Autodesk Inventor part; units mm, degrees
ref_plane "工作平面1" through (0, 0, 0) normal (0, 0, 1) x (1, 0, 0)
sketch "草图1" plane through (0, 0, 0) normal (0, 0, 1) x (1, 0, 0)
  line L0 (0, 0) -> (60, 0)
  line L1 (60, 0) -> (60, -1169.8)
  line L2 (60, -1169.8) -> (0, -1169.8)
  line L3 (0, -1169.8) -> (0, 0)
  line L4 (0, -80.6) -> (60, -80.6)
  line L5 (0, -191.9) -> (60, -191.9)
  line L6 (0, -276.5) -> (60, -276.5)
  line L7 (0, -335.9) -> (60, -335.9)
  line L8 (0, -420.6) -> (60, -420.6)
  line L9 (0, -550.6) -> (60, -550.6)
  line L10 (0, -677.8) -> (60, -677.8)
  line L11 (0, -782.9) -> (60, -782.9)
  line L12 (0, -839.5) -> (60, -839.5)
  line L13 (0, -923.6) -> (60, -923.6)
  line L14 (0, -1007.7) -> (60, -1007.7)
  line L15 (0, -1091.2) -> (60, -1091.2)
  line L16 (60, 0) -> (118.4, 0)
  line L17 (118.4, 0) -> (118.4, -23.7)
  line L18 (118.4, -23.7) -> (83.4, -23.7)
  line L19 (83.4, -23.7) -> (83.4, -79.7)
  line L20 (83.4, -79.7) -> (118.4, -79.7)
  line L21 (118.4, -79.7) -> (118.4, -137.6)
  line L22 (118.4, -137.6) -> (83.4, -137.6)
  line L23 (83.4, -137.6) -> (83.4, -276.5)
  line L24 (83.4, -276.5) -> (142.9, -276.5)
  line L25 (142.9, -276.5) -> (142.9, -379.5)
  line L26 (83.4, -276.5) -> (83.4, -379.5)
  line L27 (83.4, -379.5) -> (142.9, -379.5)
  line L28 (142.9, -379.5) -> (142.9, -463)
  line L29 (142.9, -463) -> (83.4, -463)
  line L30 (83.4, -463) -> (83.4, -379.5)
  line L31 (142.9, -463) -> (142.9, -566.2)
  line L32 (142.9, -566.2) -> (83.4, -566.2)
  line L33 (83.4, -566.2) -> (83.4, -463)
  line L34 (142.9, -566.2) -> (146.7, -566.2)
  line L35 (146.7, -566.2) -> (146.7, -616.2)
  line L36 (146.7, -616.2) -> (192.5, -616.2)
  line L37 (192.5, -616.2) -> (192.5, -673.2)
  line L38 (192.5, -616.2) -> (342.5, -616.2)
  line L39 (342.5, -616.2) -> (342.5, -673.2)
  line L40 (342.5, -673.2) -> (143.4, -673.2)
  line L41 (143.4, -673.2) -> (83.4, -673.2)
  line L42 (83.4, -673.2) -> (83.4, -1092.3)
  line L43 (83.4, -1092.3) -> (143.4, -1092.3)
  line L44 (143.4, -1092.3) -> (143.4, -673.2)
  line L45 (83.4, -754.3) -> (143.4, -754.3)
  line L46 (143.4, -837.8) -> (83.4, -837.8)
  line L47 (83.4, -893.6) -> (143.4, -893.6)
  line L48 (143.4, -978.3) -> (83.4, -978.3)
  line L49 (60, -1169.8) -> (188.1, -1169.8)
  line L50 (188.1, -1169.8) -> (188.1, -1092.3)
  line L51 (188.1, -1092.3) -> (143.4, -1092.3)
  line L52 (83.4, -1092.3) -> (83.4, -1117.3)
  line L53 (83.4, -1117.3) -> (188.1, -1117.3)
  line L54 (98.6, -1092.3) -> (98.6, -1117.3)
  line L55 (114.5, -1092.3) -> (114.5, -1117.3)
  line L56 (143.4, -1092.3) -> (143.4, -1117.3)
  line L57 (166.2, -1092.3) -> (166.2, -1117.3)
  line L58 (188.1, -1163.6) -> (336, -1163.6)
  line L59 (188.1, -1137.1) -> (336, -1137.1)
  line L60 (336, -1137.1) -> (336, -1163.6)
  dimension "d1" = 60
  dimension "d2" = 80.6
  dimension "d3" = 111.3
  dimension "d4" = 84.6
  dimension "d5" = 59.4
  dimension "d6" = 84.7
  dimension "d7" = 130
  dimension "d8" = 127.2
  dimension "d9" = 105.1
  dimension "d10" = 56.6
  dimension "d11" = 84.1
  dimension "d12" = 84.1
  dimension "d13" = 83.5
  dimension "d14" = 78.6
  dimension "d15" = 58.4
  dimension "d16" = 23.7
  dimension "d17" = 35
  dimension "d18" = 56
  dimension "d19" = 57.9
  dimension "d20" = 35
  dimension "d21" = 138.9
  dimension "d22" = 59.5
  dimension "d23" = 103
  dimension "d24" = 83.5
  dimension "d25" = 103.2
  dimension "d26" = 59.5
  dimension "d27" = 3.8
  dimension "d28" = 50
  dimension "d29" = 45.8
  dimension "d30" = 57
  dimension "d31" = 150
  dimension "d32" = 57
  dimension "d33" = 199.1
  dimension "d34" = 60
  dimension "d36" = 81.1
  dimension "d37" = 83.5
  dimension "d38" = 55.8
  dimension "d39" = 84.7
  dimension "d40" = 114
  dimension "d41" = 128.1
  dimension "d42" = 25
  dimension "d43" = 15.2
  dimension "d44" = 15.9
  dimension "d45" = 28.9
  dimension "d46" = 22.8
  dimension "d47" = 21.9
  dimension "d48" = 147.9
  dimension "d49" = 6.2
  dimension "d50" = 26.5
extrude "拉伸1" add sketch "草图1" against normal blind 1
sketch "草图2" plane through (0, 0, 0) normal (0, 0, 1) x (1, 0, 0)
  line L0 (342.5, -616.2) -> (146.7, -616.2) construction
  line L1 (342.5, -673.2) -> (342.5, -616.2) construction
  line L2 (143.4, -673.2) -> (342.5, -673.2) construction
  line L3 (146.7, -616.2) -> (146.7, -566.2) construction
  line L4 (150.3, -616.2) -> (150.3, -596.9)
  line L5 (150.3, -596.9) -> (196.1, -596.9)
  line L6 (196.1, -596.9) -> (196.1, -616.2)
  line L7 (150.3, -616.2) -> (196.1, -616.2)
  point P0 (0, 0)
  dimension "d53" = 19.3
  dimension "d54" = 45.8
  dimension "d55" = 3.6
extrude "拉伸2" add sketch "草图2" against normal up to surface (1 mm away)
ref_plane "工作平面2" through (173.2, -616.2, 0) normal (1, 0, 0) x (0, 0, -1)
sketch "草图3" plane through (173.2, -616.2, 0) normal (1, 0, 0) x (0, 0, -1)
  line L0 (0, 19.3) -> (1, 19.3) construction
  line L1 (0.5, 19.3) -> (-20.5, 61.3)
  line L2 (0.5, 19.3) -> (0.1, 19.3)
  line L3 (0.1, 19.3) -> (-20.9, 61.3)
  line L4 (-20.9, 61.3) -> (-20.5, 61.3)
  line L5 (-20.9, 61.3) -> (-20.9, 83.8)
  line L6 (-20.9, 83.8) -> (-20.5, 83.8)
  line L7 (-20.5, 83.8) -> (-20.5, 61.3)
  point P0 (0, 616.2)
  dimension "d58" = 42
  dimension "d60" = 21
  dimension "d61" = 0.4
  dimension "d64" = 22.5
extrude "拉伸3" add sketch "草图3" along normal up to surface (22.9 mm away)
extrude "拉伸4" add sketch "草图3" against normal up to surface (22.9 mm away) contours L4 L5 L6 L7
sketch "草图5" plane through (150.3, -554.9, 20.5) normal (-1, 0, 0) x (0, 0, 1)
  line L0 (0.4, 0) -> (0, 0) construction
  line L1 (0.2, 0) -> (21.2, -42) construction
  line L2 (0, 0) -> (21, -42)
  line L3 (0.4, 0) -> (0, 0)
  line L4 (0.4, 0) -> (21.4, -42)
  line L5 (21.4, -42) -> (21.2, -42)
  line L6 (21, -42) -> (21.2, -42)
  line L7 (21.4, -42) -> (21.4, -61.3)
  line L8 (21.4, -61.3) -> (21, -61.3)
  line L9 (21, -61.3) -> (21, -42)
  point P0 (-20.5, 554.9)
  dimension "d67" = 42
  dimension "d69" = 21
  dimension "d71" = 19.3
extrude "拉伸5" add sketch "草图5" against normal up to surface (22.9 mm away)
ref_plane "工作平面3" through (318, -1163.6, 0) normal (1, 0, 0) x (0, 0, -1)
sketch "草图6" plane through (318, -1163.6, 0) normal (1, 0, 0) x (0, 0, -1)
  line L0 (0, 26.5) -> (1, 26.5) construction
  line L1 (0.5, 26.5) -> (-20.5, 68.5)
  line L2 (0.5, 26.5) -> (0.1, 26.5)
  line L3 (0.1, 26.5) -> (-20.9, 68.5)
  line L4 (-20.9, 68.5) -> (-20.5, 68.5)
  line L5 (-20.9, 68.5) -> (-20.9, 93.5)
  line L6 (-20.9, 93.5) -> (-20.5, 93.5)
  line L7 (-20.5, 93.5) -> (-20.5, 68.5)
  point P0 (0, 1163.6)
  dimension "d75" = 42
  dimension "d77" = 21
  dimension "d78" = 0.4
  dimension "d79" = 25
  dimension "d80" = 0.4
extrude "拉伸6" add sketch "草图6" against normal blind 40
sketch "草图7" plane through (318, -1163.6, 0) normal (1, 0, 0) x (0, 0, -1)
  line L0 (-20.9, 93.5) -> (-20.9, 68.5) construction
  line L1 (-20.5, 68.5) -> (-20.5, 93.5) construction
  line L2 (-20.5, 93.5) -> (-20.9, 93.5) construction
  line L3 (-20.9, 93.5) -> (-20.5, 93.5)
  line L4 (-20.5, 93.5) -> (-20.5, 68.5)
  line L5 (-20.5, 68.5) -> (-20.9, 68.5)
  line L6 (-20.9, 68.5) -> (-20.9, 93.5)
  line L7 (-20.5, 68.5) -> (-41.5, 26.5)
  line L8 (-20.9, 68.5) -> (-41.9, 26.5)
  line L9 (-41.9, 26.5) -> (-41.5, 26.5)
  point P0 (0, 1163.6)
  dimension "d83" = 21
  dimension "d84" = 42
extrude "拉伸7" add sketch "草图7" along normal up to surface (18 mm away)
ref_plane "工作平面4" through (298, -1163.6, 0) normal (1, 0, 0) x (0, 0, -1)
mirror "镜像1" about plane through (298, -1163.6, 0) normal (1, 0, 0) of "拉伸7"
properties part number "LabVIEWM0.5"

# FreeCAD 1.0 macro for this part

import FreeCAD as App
import Part
import Sketcher
from FreeCAD import Vector
Q = App.Units.Quantity

doc = App.newDocument("Part")
body = doc.addObject("PartDesign::Body", "Body")

# Sketch on XY plane
sketch1 = body.newObject("Sketcher::SketchObject", "Sketch")
sketch1.AttachmentSupport = (doc.getObject("XY_Plane"), [""])
sketch1.MapMode = "FlatFace"
sketch1.addGeometry([
    Part.LineSegment(Vector(0, 0, 0), Vector(0, -1169.8, 0)),  # 0
    Part.LineSegment(Vector(0, -1169.8, 0), Vector(188.1, -1169.8, 0)),  # 1
    Part.LineSegment(Vector(188.1, -1169.8, 0), Vector(188.1, -1163.6, 0)),  # 2
    Part.LineSegment(Vector(188.1, -1163.6, 0), Vector(336, -1163.6, 0)),  # 3
    Part.LineSegment(Vector(336, -1163.6, 0), Vector(336, -1137.1, 0)),  # 4
    Part.LineSegment(Vector(336, -1137.1, 0), Vector(188.1, -1137.1, 0)),  # 5
    Part.LineSegment(Vector(188.1, -1137.1, 0), Vector(188.1, -1092.3, 0)),  # 6
    Part.LineSegment(Vector(188.1, -1092.3, 0), Vector(143.4, -1092.3, 0)),  # 7
    Part.LineSegment(Vector(143.4, -1092.3, 0), Vector(143.4, -673.2, 0)),  # 8
    Part.LineSegment(Vector(143.4, -673.2, 0), Vector(342.5, -673.2, 0)),  # 9
    Part.LineSegment(Vector(342.5, -673.2, 0), Vector(342.5, -616.2, 0)),  # 10
    Part.LineSegment(Vector(342.5, -616.2, 0), Vector(146.7, -616.2, 0)),  # 11
    Part.LineSegment(Vector(146.7, -616.2, 0), Vector(146.7, -566.2, 0)),  # 12
    Part.LineSegment(Vector(146.7, -566.2, 0), Vector(142.9, -566.2, 0)),  # 13
    Part.LineSegment(Vector(142.9, -566.2, 0), Vector(142.9, -276.5, 0)),  # 14
    Part.LineSegment(Vector(142.9, -276.5, 0), Vector(83.4, -276.5, 0)),  # 15
    Part.LineSegment(Vector(83.4, -276.5, 0), Vector(83.4, -137.6, 0)),  # 16
    Part.LineSegment(Vector(83.4, -137.6, 0), Vector(118.4, -137.6, 0)),  # 17
    Part.LineSegment(Vector(118.4, -137.6, 0), Vector(118.4, -79.7, 0)),  # 18
    Part.LineSegment(Vector(118.4, -79.7, 0), Vector(83.4, -79.7, 0)),  # 19
    Part.LineSegment(Vector(83.4, -79.7, 0), Vector(83.4, -23.7, 0)),  # 20
    Part.LineSegment(Vector(83.4, -23.7, 0), Vector(118.4, -23.7, 0)),  # 21
    Part.LineSegment(Vector(118.4, -23.7, 0), Vector(118.4, 0, 0)),  # 22
    Part.LineSegment(Vector(118.4, 0, 0), Vector(0, 0, 0)),  # 23
], False)
sketch1.addConstraint([
    Sketcher.Constraint("Coincident", 0, 2, 1, 1),
    Sketcher.Constraint("Coincident", 1, 2, 2, 1),
    Sketcher.Constraint("Coincident", 2, 2, 3, 1),
    Sketcher.Constraint("Coincident", 3, 2, 4, 1),
    Sketcher.Constraint("Coincident", 4, 2, 5, 1),
    Sketcher.Constraint("Coincident", 5, 2, 6, 1),
    Sketcher.Constraint("Coincident", 6, 2, 7, 1),
    Sketcher.Constraint("Coincident", 7, 2, 8, 1),
    Sketcher.Constraint("Coincident", 8, 2, 9, 1),
    Sketcher.Constraint("Coincident", 9, 2, 10, 1),
    Sketcher.Constraint("Coincident", 10, 2, 11, 1),
    Sketcher.Constraint("Coincident", 11, 2, 12, 1),
    Sketcher.Constraint("Coincident", 12, 2, 13, 1),
    Sketcher.Constraint("Coincident", 13, 2, 14, 1),
    Sketcher.Constraint("Coincident", 14, 2, 15, 1),
    Sketcher.Constraint("Coincident", 15, 2, 16, 1),
    Sketcher.Constraint("Coincident", 16, 2, 17, 1),
    Sketcher.Constraint("Coincident", 17, 2, 18, 1),
    Sketcher.Constraint("Coincident", 18, 2, 19, 1),
    Sketcher.Constraint("Coincident", 19, 2, 20, 1),
    Sketcher.Constraint("Coincident", 20, 2, 21, 1),
    Sketcher.Constraint("Coincident", 21, 2, 22, 1),
    Sketcher.Constraint("Coincident", 22, 2, 23, 1),
    Sketcher.Constraint("Coincident", 23, 2, 0, 1),
    Sketcher.Constraint("Vertical", 0),
    Sketcher.Constraint("Horizontal", 1),
    Sketcher.Constraint("Vertical", 2),
    Sketcher.Constraint("Horizontal", 3),
    Sketcher.Constraint("Vertical", 4),
    Sketcher.Constraint("Horizontal", 5),
    Sketcher.Constraint("Vertical", 6),
    Sketcher.Constraint("Horizontal", 7),
    Sketcher.Constraint("Vertical", 8),
    Sketcher.Constraint("Horizontal", 9),
    Sketcher.Constraint("Vertical", 10),
    Sketcher.Constraint("Horizontal", 11),
    Sketcher.Constraint("Vertical", 12),
    Sketcher.Constraint("Horizontal", 13),
    Sketcher.Constraint("Vertical", 14),
    Sketcher.Constraint("Horizontal", 15),
    Sketcher.Constraint("Vertical", 16),
    Sketcher.Constraint("Horizontal", 17),
    Sketcher.Constraint("Vertical", 18),
    Sketcher.Constraint("Horizontal", 19),
    Sketcher.Constraint("Vertical", 20),
    Sketcher.Constraint("Horizontal", 21),
    Sketcher.Constraint("Vertical", 22),
    Sketcher.Constraint("Horizontal", 23),
    Sketcher.Constraint("Coincident", 23, 2, -1, 1),
    Sketcher.Constraint("Vertical", 2, 2, 5, 2),
    Sketcher.Constraint("Vertical", 16, 2, 19, 2),
    Sketcher.Constraint("Vertical", 18, 2, 21, 2),
    Sketcher.Constraint("DistanceX", 17, 1, 17, 2, Q("35 mm")),
    Sketcher.Constraint("DistanceY", 10, 1, 10, 2, Q("57 mm")),
    Sketcher.Constraint("DistanceY", 12, 1, 12, 2, Q("50 mm")),
    Sketcher.Constraint("DistanceY", 20, 1, 20, 2, Q("56 mm")),
    Sketcher.Constraint("DistanceX", 3, 1, 3, 2, Q("147.9 mm")),
    Sketcher.Constraint("DistanceX", 9, 1, 9, 2, Q("199.1 mm")),
    Sketcher.Constraint("DistanceX", 13, 2, 13, 1, Q("3.8 mm")),
    Sketcher.Constraint("DistanceX", 15, 2, 15, 1, Q("59.5 mm")),
    Sketcher.Constraint("DistanceY", 2, 1, 2, 2, Q("6.2 mm")),
    Sketcher.Constraint("DistanceY", 4, 1, 4, 2, Q("26.5 mm")),
    Sketcher.Constraint("DistanceY", 16, 1, 16, 2, Q("138.9 mm")),
    Sketcher.Constraint("DistanceY", 18, 1, 18, 2, Q("57.9 mm")),
    Sketcher.Constraint("DistanceY", 22, 1, 22, 2, Q("23.7 mm")),
    Sketcher.Constraint("DistanceX", 15, 2, 8, 2, Q("60 mm")),
    Sketcher.Constraint("DistanceX", 1, 1, 1, 2, Q("188.1 mm")),
    Sketcher.Constraint("DistanceX", 7, 2, 7, 1, Q("44.7 mm")),
    Sketcher.Constraint("DistanceY", 0, 2, 0, 1, Q("1169.8 mm")),
    Sketcher.Constraint("DistanceY", 6, 1, 6, 2, Q("44.8 mm")),
    Sketcher.Constraint("DistanceY", 8, 1, 8, 2, Q("419.1 mm")),
])
pad1 = body.newObject("PartDesign::Pad", "Pad")
pad1.Profile = sketch1
pad1.Length = 1
pad1.Reversed = True

# Sketch on XY plane
sketch2 = body.newObject("Sketcher::SketchObject", "Sketch001")
sketch2.AttachmentSupport = (doc.getObject("XY_Plane"), [""])
sketch2.MapMode = "FlatFace"
sketch2.addGeometry([
    Part.LineSegment(Vector(150.3, -596.9, 0), Vector(150.3, -616.2, 0)),
    Part.LineSegment(Vector(150.3, -616.2, 0), Vector(196.1, -616.2, 0)),
    Part.LineSegment(Vector(196.1, -616.2, 0), Vector(196.1, -596.9, 0)),
    Part.LineSegment(Vector(196.1, -596.9, 0), Vector(150.3, -596.9, 0)),
], False)
sketch2.addConstraint([
    Sketcher.Constraint("Coincident", 0, 2, 1, 1),
    Sketcher.Constraint("Coincident", 1, 2, 2, 1),
    Sketcher.Constraint("Coincident", 2, 2, 3, 1),
    Sketcher.Constraint("Coincident", 3, 2, 0, 1),
    Sketcher.Constraint("Vertical", 0),
    Sketcher.Constraint("Horizontal", 1),
    Sketcher.Constraint("Vertical", 2),
    Sketcher.Constraint("Horizontal", 3),
    Sketcher.Constraint("DistanceX", 1, 1, 1, 2, Q("45.8 mm")),
    Sketcher.Constraint("DistanceY", 0, 2, 0, 1, Q("19.3 mm")),
    Sketcher.Constraint("DistanceX", -1, 1, 0, 2, Q("150.3 mm")),
    Sketcher.Constraint("DistanceY", 0, 2, -1, 1, Q("616.2 mm")),
])
pad2 = body.newObject("PartDesign::Pad", "Pad001")
pad2.Profile = sketch2
pad2.Length = 1
pad2.Reversed = True

# Sketch on YZ plane
sketch3 = body.newObject("Sketcher::SketchObject", "Sketch002")
sketch3.AttachmentSupport = (doc.getObject("YZ_Plane"), [""])
sketch3.MapMode = "FlatFace"
sketch3.AttachmentOffset = App.Placement(Vector(0, 0, 173.2), App.Rotation())
sketch3.addGeometry([
    Part.LineSegment(Vector(-596.9, -0.1, 0), Vector(-596.9, -0.5, 0)),  # 0
    Part.LineSegment(Vector(-596.9, -0.5, 0), Vector(-554.9, 20.5, 0)),  # 1
    Part.LineSegment(Vector(-554.9, 20.5, 0), Vector(-532.4, 20.5, 0)),  # 2
    Part.LineSegment(Vector(-532.4, 20.5, 0), Vector(-532.4, 20.9, 0)),  # 3
    Part.LineSegment(Vector(-532.4, 20.9, 0), Vector(-554.9, 20.9, 0)),  # 4
    Part.LineSegment(Vector(-554.9, 20.9, 0), Vector(-596.9, -0.1, 0)),  # 5
], False)
sketch3.addConstraint([
    Sketcher.Constraint("Coincident", 0, 2, 1, 1),
    Sketcher.Constraint("Coincident", 1, 2, 2, 1),
    Sketcher.Constraint("Coincident", 2, 2, 3, 1),
    Sketcher.Constraint("Coincident", 3, 2, 4, 1),
    Sketcher.Constraint("Coincident", 4, 2, 5, 1),
    Sketcher.Constraint("Coincident", 5, 2, 0, 1),
    Sketcher.Constraint("Vertical", 0),
    Sketcher.Constraint("Horizontal", 2),
    Sketcher.Constraint("Vertical", 3),
    Sketcher.Constraint("Horizontal", 4),
    Sketcher.Constraint("Parallel", 1, 5),
    Sketcher.Constraint("Vertical", 1, 2, 4, 2),
    Sketcher.Constraint("DistanceX", 2, 1, 2, 2, Q("22.5 mm")),
    Sketcher.Constraint("DistanceY", 0, 2, 0, 1, Q("0.4 mm")),
    Sketcher.Constraint("DistanceX", 0, 2, 1, 2, Q("42 mm")),
    Sketcher.Constraint("DistanceY", 0, 2, 1, 2, Q("21 mm")),
    Sketcher.Constraint("DistanceX", 0, 2, -1, 1, Q("596.9 mm")),
    Sketcher.Constraint("DistanceY", 0, 2, -1, 1, Q("0.5 mm")),
])
pad3 = body.newObject("PartDesign::Pad", "Pad002")
pad3.Profile = sketch3
pad3.Length = 22.9

# Sketch on YZ plane
sketch4 = body.newObject("Sketcher::SketchObject", "Sketch003")
sketch4.AttachmentSupport = (doc.getObject("YZ_Plane"), [""])
sketch4.MapMode = "FlatFace"
sketch4.AttachmentOffset = App.Placement(Vector(0, 0, 173.2), App.Rotation())
sketch4.addGeometry([
    Part.LineSegment(Vector(-554.9, 20.9, 0), Vector(-554.9, 20.5, 0)),
    Part.LineSegment(Vector(-554.9, 20.5, 0), Vector(-532.4, 20.5, 0)),
    Part.LineSegment(Vector(-532.4, 20.5, 0), Vector(-532.4, 20.9, 0)),
    Part.LineSegment(Vector(-532.4, 20.9, 0), Vector(-554.9, 20.9, 0)),
], False)
sketch4.addConstraint([
    Sketcher.Constraint("Coincident", 0, 2, 1, 1),
    Sketcher.Constraint("Coincident", 1, 2, 2, 1),
    Sketcher.Constraint("Coincident", 2, 2, 3, 1),
    Sketcher.Constraint("Coincident", 3, 2, 0, 1),
    Sketcher.Constraint("Vertical", 0),
    Sketcher.Constraint("Horizontal", 1),
    Sketcher.Constraint("Vertical", 2),
    Sketcher.Constraint("Horizontal", 3),
    Sketcher.Constraint("DistanceX", 1, 1, 1, 2, Q("22.5 mm")),
    Sketcher.Constraint("DistanceY", 0, 2, 0, 1, Q("0.4 mm")),
    Sketcher.Constraint("DistanceX", 0, 2, -1, 1, Q("554.9 mm")),
    Sketcher.Constraint("DistanceY", -1, 1, 0, 2, Q("20.5 mm")),
])
pad4 = body.newObject("PartDesign::Pad", "Pad003")
pad4.Profile = sketch4
pad4.Length = 22.9
pad4.Reversed = True

# Sketch on YZ plane
sketch5 = body.newObject("Sketcher::SketchObject", "Sketch004")
sketch5.AttachmentSupport = (doc.getObject("YZ_Plane"), [""])
sketch5.MapMode = "FlatFace"
sketch5.AttachmentOffset = App.Placement(Vector(0, 0, 150.3), App.Rotation())
sketch5.addGeometry([
    Part.LineSegment(Vector(-554.9, 20.9, 0), Vector(-554.9, 20.5, 0)),  # 0
    Part.LineSegment(Vector(-554.9, 20.5, 0), Vector(-596.9, 41.5, 0)),  # 1
    Part.LineSegment(Vector(-596.9, 41.5, 0), Vector(-616.2, 41.5, 0)),  # 2
    Part.LineSegment(Vector(-616.2, 41.5, 0), Vector(-616.2, 41.9, 0)),  # 3
    Part.LineSegment(Vector(-616.2, 41.9, 0), Vector(-596.9, 41.9, 0)),  # 4
    Part.LineSegment(Vector(-596.9, 41.9, 0), Vector(-554.9, 20.9, 0)),  # 5
], False)
sketch5.addConstraint([
    Sketcher.Constraint("Coincident", 0, 2, 1, 1),
    Sketcher.Constraint("Coincident", 1, 2, 2, 1),
    Sketcher.Constraint("Coincident", 2, 2, 3, 1),
    Sketcher.Constraint("Coincident", 3, 2, 4, 1),
    Sketcher.Constraint("Coincident", 4, 2, 5, 1),
    Sketcher.Constraint("Coincident", 5, 2, 0, 1),
    Sketcher.Constraint("Vertical", 0),
    Sketcher.Constraint("Horizontal", 2),
    Sketcher.Constraint("Vertical", 3),
    Sketcher.Constraint("Horizontal", 4),
    Sketcher.Constraint("Parallel", 1, 5),
    Sketcher.Constraint("Vertical", 1, 2, 4, 2),
    Sketcher.Constraint("DistanceX", 2, 2, 2, 1, Q("19.3 mm")),
    Sketcher.Constraint("DistanceX", 1, 2, 0, 2, Q("42 mm")),
    Sketcher.Constraint("DistanceY", 0, 2, 1, 2, Q("21 mm")),
    Sketcher.Constraint("DistanceY", 0, 2, 0, 1, Q("0.4 mm")),
    Sketcher.Constraint("DistanceX", 0, 2, -1, 1, Q("554.9 mm")),
    Sketcher.Constraint("DistanceY", -1, 1, 0, 2, Q("20.5 mm")),
])
pad5 = body.newObject("PartDesign::Pad", "Pad004")
pad5.Profile = sketch5
pad5.Length = 22.9

# Sketch on YZ plane
sketch6 = body.newObject("Sketcher::SketchObject", "Sketch005")
sketch6.AttachmentSupport = (doc.getObject("YZ_Plane"), [""])
sketch6.MapMode = "FlatFace"
sketch6.AttachmentOffset = App.Placement(Vector(0, 0, 318), App.Rotation())
sketch6.addGeometry([
    Part.LineSegment(Vector(-1137.1, -0.1, 0), Vector(-1137.1, -0.5, 0)),  # 0
    Part.LineSegment(Vector(-1137.1, -0.5, 0), Vector(-1095.1, 20.5, 0)),  # 1
    Part.LineSegment(Vector(-1095.1, 20.5, 0), Vector(-1070.1, 20.5, 0)),  # 2
    Part.LineSegment(Vector(-1070.1, 20.5, 0), Vector(-1070.1, 20.9, 0)),  # 3
    Part.LineSegment(Vector(-1070.1, 20.9, 0), Vector(-1095.1, 20.9, 0)),  # 4
    Part.LineSegment(Vector(-1095.1, 20.9, 0), Vector(-1137.1, -0.1, 0)),  # 5
], False)
sketch6.addConstraint([
    Sketcher.Constraint("Coincident", 0, 2, 1, 1),
    Sketcher.Constraint("Coincident", 1, 2, 2, 1),
    Sketcher.Constraint("Coincident", 2, 2, 3, 1),
    Sketcher.Constraint("Coincident", 3, 2, 4, 1),
    Sketcher.Constraint("Coincident", 4, 2, 5, 1),
    Sketcher.Constraint("Coincident", 5, 2, 0, 1),
    Sketcher.Constraint("Vertical", 0),
    Sketcher.Constraint("Horizontal", 2),
    Sketcher.Constraint("Vertical", 3),
    Sketcher.Constraint("Horizontal", 4),
    Sketcher.Constraint("Parallel", 1, 5),
    Sketcher.Constraint("Vertical", 1, 2, 4, 2),
    Sketcher.Constraint("DistanceX", 2, 1, 2, 2, Q("25 mm")),
    Sketcher.Constraint("DistanceY", 0, 2, 0, 1, Q("0.4 mm")),
    Sketcher.Constraint("DistanceX", 0, 2, 1, 2, Q("42 mm")),
    Sketcher.Constraint("DistanceY", 0, 2, 1, 2, Q("21 mm")),
    Sketcher.Constraint("DistanceX", 0, 2, -1, 1, Q("1137.1 mm")),
    Sketcher.Constraint("DistanceY", 0, 2, -1, 1, Q("0.5 mm")),
])
pad6 = body.newObject("PartDesign::Pad", "Pad005")
pad6.Profile = sketch6
pad6.Length = 40
pad6.Reversed = True

# Sketch on YZ plane
sketch7 = body.newObject("Sketcher::SketchObject", "Sketch006")
sketch7.AttachmentSupport = (doc.getObject("YZ_Plane"), [""])
sketch7.MapMode = "FlatFace"
sketch7.AttachmentOffset = App.Placement(Vector(0, 0, 318), App.Rotation())
sketch7.addGeometry([
    Part.LineSegment(Vector(-1070.1, 20.5, 0), Vector(-1070.1, 20.9, 0)),  # 0
    Part.LineSegment(Vector(-1070.1, 20.9, 0), Vector(-1095.1, 20.9, 0)),  # 1
    Part.LineSegment(Vector(-1095.1, 20.9, 0), Vector(-1137.1, 41.9, 0)),  # 2
    Part.LineSegment(Vector(-1137.1, 41.9, 0), Vector(-1137.1, 41.5, 0)),  # 3
    Part.LineSegment(Vector(-1137.1, 41.5, 0), Vector(-1095.1, 20.5, 0)),  # 4
    Part.LineSegment(Vector(-1095.1, 20.5, 0), Vector(-1070.1, 20.5, 0)),  # 5
], False)
sketch7.addConstraint([
    Sketcher.Constraint("Coincident", 0, 2, 1, 1),
    Sketcher.Constraint("Coincident", 1, 2, 2, 1),
    Sketcher.Constraint("Coincident", 2, 2, 3, 1),
    Sketcher.Constraint("Coincident", 3, 2, 4, 1),
    Sketcher.Constraint("Coincident", 4, 2, 5, 1),
    Sketcher.Constraint("Coincident", 5, 2, 0, 1),
    Sketcher.Constraint("Vertical", 0),
    Sketcher.Constraint("Horizontal", 1),
    Sketcher.Constraint("Vertical", 3),
    Sketcher.Constraint("Horizontal", 5),
    Sketcher.Constraint("Parallel", 2, 4),
    Sketcher.Constraint("Vertical", 1, 2, 4, 2),
    Sketcher.Constraint("DistanceX", 2, 2, 1, 2, Q("42 mm")),
    Sketcher.Constraint("DistanceY", 1, 2, 2, 2, Q("21 mm")),
    Sketcher.Constraint("DistanceX", 1, 2, 1, 1, Q("25 mm")),
    Sketcher.Constraint("DistanceY", 0, 1, 0, 2, Q("0.4 mm")),
    Sketcher.Constraint("DistanceX", 0, 2, -1, 1, Q("1070.1 mm")),
    Sketcher.Constraint("DistanceY", -1, 1, 0, 2, Q("20.9 mm")),
])
pad7 = body.newObject("PartDesign::Pad", "Pad006")
pad7.Profile = sketch7
pad7.Length = 18
doc.recompute()

datumplane = body.newObject("PartDesign::Plane", "DatumPlane")
datumplane.AttachmentSupport = (doc.getObject("YZ_Plane"), [""])
datumplane.MapMode = "FlatFace"
datumplane.AttachmentOffset = App.Placement(Vector(0, 0, 298), App.Rotation())
mirrored = body.newObject("PartDesign::Mirrored", "Mirrored")
mirrored.Originals = [pad7]
mirrored.MirrorPlane = (datumplane, [""])
body.Tip = mirrored

doc.recompute()
